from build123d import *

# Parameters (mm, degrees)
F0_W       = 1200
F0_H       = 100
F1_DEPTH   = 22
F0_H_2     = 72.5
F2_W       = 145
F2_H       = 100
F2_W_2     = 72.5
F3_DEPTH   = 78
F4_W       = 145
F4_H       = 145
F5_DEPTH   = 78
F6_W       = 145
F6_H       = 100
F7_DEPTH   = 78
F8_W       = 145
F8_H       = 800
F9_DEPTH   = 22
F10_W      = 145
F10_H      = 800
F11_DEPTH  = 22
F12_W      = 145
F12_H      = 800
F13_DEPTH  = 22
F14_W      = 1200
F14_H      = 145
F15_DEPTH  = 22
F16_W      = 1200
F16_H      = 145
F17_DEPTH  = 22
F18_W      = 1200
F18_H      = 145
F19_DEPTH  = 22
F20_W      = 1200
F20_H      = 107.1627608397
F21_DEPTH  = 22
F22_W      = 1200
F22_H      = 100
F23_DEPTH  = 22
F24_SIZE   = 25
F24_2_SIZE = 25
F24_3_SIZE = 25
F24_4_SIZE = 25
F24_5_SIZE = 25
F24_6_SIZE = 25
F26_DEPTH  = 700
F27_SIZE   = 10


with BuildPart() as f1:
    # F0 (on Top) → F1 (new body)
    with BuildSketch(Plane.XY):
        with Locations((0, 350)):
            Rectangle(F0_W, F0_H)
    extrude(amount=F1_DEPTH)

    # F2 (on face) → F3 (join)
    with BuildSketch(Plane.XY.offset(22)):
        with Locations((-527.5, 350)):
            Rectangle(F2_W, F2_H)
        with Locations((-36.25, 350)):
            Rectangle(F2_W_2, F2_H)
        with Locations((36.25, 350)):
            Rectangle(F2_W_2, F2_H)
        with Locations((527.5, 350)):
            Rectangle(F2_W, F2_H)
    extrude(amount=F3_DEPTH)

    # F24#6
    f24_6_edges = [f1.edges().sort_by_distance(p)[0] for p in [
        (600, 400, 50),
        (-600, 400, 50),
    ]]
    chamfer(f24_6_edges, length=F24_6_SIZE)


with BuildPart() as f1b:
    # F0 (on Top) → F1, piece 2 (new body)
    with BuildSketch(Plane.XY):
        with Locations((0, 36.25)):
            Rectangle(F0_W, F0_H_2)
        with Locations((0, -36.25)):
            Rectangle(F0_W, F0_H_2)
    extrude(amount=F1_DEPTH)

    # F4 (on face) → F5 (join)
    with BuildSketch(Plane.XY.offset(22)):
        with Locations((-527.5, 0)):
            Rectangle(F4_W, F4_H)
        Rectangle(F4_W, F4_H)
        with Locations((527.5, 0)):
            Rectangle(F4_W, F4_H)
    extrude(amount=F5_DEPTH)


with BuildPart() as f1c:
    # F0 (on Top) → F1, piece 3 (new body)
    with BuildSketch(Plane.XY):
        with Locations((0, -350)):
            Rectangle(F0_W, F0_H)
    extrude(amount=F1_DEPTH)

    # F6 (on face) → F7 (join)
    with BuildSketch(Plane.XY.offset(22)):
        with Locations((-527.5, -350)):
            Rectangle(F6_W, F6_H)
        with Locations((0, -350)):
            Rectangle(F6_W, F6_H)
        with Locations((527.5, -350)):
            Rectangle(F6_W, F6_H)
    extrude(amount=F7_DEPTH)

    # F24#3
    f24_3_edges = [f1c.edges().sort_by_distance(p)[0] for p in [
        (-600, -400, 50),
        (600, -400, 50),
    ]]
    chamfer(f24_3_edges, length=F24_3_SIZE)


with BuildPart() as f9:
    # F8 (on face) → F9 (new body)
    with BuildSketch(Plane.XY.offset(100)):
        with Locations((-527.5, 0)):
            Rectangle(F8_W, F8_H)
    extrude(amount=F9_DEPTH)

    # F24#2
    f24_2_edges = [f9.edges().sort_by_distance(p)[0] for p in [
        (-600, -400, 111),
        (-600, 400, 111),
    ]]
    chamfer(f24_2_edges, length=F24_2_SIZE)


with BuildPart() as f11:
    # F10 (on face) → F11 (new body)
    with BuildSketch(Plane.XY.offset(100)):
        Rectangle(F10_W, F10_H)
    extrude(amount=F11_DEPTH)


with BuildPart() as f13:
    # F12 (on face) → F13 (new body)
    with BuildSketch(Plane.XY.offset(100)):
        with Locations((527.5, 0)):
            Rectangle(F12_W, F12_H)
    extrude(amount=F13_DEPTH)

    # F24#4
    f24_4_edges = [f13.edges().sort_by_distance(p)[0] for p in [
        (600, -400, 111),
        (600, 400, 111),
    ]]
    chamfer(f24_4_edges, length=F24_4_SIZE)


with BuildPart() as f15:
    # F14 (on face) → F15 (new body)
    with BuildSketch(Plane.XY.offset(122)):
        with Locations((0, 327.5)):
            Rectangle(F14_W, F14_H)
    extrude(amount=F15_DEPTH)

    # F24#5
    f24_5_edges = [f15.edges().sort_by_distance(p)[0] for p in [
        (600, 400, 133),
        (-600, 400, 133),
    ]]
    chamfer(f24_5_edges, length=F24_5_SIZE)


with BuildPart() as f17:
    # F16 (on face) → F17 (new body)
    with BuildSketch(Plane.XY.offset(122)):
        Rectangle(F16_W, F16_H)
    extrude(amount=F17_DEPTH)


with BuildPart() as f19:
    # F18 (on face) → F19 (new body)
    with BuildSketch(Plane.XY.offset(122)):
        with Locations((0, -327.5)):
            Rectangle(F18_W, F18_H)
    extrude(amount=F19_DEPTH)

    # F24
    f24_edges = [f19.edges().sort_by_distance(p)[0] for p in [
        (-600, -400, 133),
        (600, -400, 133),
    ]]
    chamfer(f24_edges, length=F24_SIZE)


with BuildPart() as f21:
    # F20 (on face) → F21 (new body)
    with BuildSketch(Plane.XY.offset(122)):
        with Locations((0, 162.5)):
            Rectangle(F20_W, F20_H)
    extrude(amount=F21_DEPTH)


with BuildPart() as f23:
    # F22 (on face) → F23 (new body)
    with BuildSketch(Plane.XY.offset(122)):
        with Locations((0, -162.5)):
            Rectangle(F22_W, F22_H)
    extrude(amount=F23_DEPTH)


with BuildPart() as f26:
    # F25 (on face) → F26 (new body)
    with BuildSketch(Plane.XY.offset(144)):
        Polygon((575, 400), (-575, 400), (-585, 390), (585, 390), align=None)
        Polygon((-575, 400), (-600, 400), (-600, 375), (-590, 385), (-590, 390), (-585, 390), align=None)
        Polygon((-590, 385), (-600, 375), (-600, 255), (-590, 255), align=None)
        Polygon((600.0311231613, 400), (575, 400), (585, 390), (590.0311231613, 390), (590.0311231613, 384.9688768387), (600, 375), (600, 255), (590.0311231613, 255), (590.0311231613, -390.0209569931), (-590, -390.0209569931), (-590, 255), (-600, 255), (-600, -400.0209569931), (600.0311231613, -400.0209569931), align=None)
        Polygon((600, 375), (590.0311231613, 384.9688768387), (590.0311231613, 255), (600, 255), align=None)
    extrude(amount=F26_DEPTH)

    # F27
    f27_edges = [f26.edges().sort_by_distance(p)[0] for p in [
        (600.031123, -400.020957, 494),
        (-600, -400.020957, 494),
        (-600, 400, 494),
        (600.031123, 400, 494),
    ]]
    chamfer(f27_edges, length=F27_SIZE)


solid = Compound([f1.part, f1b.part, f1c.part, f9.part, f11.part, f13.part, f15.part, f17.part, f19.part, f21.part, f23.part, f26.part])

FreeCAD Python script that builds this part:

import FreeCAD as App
import Part
import Sketcher

V = App.Vector


def edges_at(feature, points):
    """Names of the edges that pass closest to the given points."""
    edges = feature.Shape.Edges
    near = lambda p: min(range(len(edges)), key=lambda i: edges[i].distToShape(Part.Vertex(*p))[0])
    return sorted({f"Edge{near(p) + 1}" for p in points})


def add_polygon(sketch, points):
    """Adds a closed chain of lines whose ends are joined by coincident constraints."""
    first, n = sketch.GeometryCount, len(points)
    for a, b in zip(points, points[1:] + points[:1]):
        sketch.addGeometry(Part.LineSegment(App.Vector(*a, 0), App.Vector(*b, 0)), False)
    for i in range(n):
        sketch.addConstraint(Sketcher.Constraint("Coincident", first + i, 2, first + (i + 1) % n, 1))

doc = App.newDocument("Part")
body = doc.addObject("PartDesign::Body", "Body")

# Sketch on XY plane
sketch1 = body.newObject("Sketcher::SketchObject", "Sketch")
sketch1.AttachmentSupport = (doc.getObject("XY_Plane"), [""])
sketch1.MapMode = "FlatFace"
add_polygon(sketch1, [(-600, 400), (-600, 300), (600, 300), (600, 400)])  # lines 0-3
sketch1.addConstraint(Sketcher.Constraint("Vertical", 0))
sketch1.addConstraint(Sketcher.Constraint("Horizontal", 1))
sketch1.addConstraint(Sketcher.Constraint("Vertical", 2))
sketch1.addConstraint(Sketcher.Constraint("Horizontal", 3))
sketch1.addConstraint(Sketcher.Constraint("DistanceX", 1, 1, 1, 2, 1200.0))
sketch1.addConstraint(Sketcher.Constraint("DistanceY", 0, 2, 0, 1, 100.0))
sketch1.addConstraint(Sketcher.Constraint("DistanceX", 0, 2, -1, 1, 600.0))
sketch1.addConstraint(Sketcher.Constraint("DistanceY", -1, 1, 0, 2, 300.0))
pad1 = body.newObject("PartDesign::Pad", "Pad")
pad1.Profile = sketch1
pad1.Length = 22

# Sketch on XY plane
sketch2 = body.newObject("Sketcher::SketchObject", "Sketch001")
sketch2.AttachmentSupport = (doc.getObject("XY_Plane"), [""])
sketch2.MapMode = "FlatFace"
sketch2.AttachmentOffset = App.Placement(V(0, 0, 22), App.Rotation())
add_polygon(sketch2, [(-600, 400), (-600, 300), (-455, 300), (-455, 400)])  # lines 0-3
add_polygon(sketch2, [(-72, 400), (-72, 300), (72, 300), (72, 400)])  # lines 4-7
add_polygon(sketch2, [(455, 400), (455, 300), (600, 300), (600, 400)])  # lines 8-11
sketch2.addConstraint(Sketcher.Constraint("Vertical", 0))
sketch2.addConstraint(Sketcher.Constraint("Horizontal", 1))
sketch2.addConstraint(Sketcher.Constraint("Vertical", 2))
sketch2.addConstraint(Sketcher.Constraint("Horizontal", 3))
sketch2.addConstraint(Sketcher.Constraint("Vertical", 4))
sketch2.addConstraint(Sketcher.Constraint("Horizontal", 5))
sketch2.addConstraint(Sketcher.Constraint("Vertical", 6))
sketch2.addConstraint(Sketcher.Constraint("Horizontal", 7))
sketch2.addConstraint(Sketcher.Constraint("Vertical", 8))
sketch2.addConstraint(Sketcher.Constraint("Horizontal", 9))
sketch2.addConstraint(Sketcher.Constraint("Vertical", 10))
sketch2.addConstraint(Sketcher.Constraint("Horizontal", 11))
sketch2.addConstraint(Sketcher.Constraint("Symmetric", 1, 2, 8, 2, -2))
sketch2.addConstraint(Sketcher.Constraint("Symmetric", 3, 2, 10, 2, -2))
sketch2.addConstraint(Sketcher.Constraint("Horizontal", 1, 2, 4, 2))
sketch2.addConstraint(Sketcher.Constraint("Horizontal", 3, 2, 6, 2))
sketch2.addConstraint(Sketcher.Constraint("Equal", 3, 5))
sketch2.addConstraint(Sketcher.Constraint("DistanceX", 1, 1, 1, 2, 145.0))
sketch2.addConstraint(Sketcher.Constraint("DistanceY", 0, 2, 0, 1, 100.0))
sketch2.addConstraint(Sketcher.Constraint("DistanceX", 0, 2, -1, 1, 600.0))
sketch2.addConstraint(Sketcher.Constraint("DistanceY", -1, 1, 0, 2, 300.0))
sketch2.addConstraint(Sketcher.Constraint("DistanceX", 4, 2, -1, 1, 72.5))
pad2 = body.newObject("PartDesign::Pad", "Pad001")
pad2.Profile = sketch2
pad2.Length = 78
doc.recompute()

chamfer = body.newObject("PartDesign::Chamfer", "Chamfer")
chamfer.Base = (pad2, edges_at(pad2, [(600, 400, 50), (-600, 400, 50)]))
chamfer.Size = 25
body2 = doc.addObject("PartDesign::Body", "Body001")

# Sketch on XY plane
sketch3 = body2.newObject("Sketcher::SketchObject", "Sketch002")
sketch3.AttachmentSupport = (doc.getObject("XY_Plane001"), [""])
sketch3.MapMode = "FlatFace"
add_polygon(sketch3, [(-600, 72), (-600, -72), (600, -72), (600, 72)])  # lines 0-3
sketch3.addConstraint(Sketcher.Constraint("Vertical", 0))
sketch3.addConstraint(Sketcher.Constraint("Horizontal", 1))
sketch3.addConstraint(Sketcher.Constraint("Vertical", 2))
sketch3.addConstraint(Sketcher.Constraint("Horizontal", 3))
sketch3.addConstraint(Sketcher.Constraint("Symmetric", 0, 2, 2, 2, -1, 1))
sketch3.addConstraint(Sketcher.Constraint("DistanceX", 1, 1, 1, 2, 1200.0))
sketch3.addConstraint(Sketcher.Constraint("DistanceY", 0, 2, 0, 1, 145.0))
pad3 = body2.newObject("PartDesign::Pad", "Pad002")
pad3.Profile = sketch3
pad3.Length = 22

# Sketch on XY plane
sketch4 = body2.newObject("Sketcher::SketchObject", "Sketch003")
sketch4.AttachmentSupport = (doc.getObject("XY_Plane001"), [""])
sketch4.MapMode = "FlatFace"
sketch4.AttachmentOffset = App.Placement(V(0, 0, 22), App.Rotation())
add_polygon(sketch4, [(-600, 72), (-600, -72), (-455, -72), (-455, 72)])  # lines 0-3
add_polygon(sketch4, [(-72, 72), (-72, -72), (72, -72), (72, 72)])  # lines 4-7
add_polygon(sketch4, [(455, 72), (455, -72), (600, -72), (600, 72)])  # lines 8-11
sketch4.addConstraint(Sketcher.Constraint("Vertical", 0))
sketch4.addConstraint(Sketcher.Constraint("Horizontal", 1))
sketch4.addConstraint(Sketcher.Constraint("Vertical", 2))
sketch4.addConstraint(Sketcher.Constraint("Horizontal", 3))
sketch4.addConstraint(Sketcher.Constraint("Vertical", 4))
sketch4.addConstraint(Sketcher.Constraint("Horizontal", 5))
sketch4.addConstraint(Sketcher.Constraint("Vertical", 6))
sketch4.addConstraint(Sketcher.Constraint("Horizontal", 7))
sketch4.addConstraint(Sketcher.Constraint("Vertical", 8))
sketch4.addConstraint(Sketcher.Constraint("Horizontal", 9))
sketch4.addConstraint(Sketcher.Constraint("Vertical", 10))
sketch4.addConstraint(Sketcher.Constraint("Horizontal", 11))
sketch4.addConstraint(Sketcher.Constraint("Symmetric", 4, 2, 6, 2, -1, 1))
sketch4.addConstraint(Sketcher.Constraint("Symmetric", 2, 2, 8, 2, -1, 1))
sketch4.addConstraint(Sketcher.Constraint("Symmetric", 0, 2, 10, 2, -1, 1))
sketch4.addConstraint(Sketcher.Constraint("Horizontal", 1, 2, 4, 2))
sketch4.addConstraint(Sketcher.Constraint("Horizontal", 3, 2, 6, 2))
sketch4.addConstraint(Sketcher.Constraint("Equal", 3, 5))
sketch4.addConstraint(Sketcher.Constraint("Equal", 11, 0))
sketch4.addConstraint(Sketcher.Constraint("DistanceX", 1, 1, 1, 2, 145.0))
sketch4.addConstraint(Sketcher.Constraint("DistanceX", 0, 2, -1, 1, 600.0))
pad4 = body2.newObject("PartDesign::Pad", "Pad003")
pad4.Profile = sketch4
pad4.Length = 78
body3 = doc.addObject("PartDesign::Body", "Body002")

# Sketch on XY plane
sketch5 = body3.newObject("Sketcher::SketchObject", "Sketch004")
sketch5.AttachmentSupport = (doc.getObject("XY_Plane002"), [""])
sketch5.MapMode = "FlatFace"
add_polygon(sketch5, [(-600, -300), (-600, -400), (600, -400), (600, -300)])  # lines 0-3
sketch5.addConstraint(Sketcher.Constraint("Vertical", 0))
sketch5.addConstraint(Sketcher.Constraint("Horizontal", 1))
sketch5.addConstraint(Sketcher.Constraint("Vertical", 2))
sketch5.addConstraint(Sketcher.Constraint("Horizontal", 3))
sketch5.addConstraint(Sketcher.Constraint("DistanceX", 1, 1, 1, 2, 1200.0))
sketch5.addConstraint(Sketcher.Constraint("DistanceY", 0, 2, 0, 1, 100.0))
sketch5.addConstraint(Sketcher.Constraint("DistanceX", 0, 2, -1, 1, 600.0))
sketch5.addConstraint(Sketcher.Constraint("DistanceY", 0, 2, -1, 1, 400.0))
pad5 = body3.newObject("PartDesign::Pad", "Pad004")
pad5.Profile = sketch5
pad5.Length = 22

# Sketch on XY plane
sketch6 = body3.newObject("Sketcher::SketchObject", "Sketch005")
sketch6.AttachmentSupport = (doc.getObject("XY_Plane002"), [""])
sketch6.MapMode = "FlatFace"
sketch6.AttachmentOffset = App.Placement(V(0, 0, 22), App.Rotation())
add_polygon(sketch6, [(-600, -300), (-600, -400), (-455, -400), (-455, -300)])  # lines 0-3
add_polygon(sketch6, [(-72, -300), (-72, -400), (72, -400), (72, -300)])  # lines 4-7
add_polygon(sketch6, [(455, -300), (455, -400), (600, -400), (600, -300)])  # lines 8-11
sketch6.addConstraint(Sketcher.Constraint("Vertical", 0))
sketch6.addConstraint(Sketcher.Constraint("Horizontal", 1))
sketch6.addConstraint(Sketcher.Constraint("Vertical", 2))
sketch6.addConstraint(Sketcher.Constraint("Horizontal", 3))
sketch6.addConstraint(Sketcher.Constraint("Vertical", 4))
sketch6.addConstraint(Sketcher.Constraint("Horizontal", 5))
sketch6.addConstraint(Sketcher.Constraint("Vertical", 6))
sketch6.addConstraint(Sketcher.Constraint("Horizontal", 7))
sketch6.addConstraint(Sketcher.Constraint("Vertical", 8))
sketch6.addConstraint(Sketcher.Constraint("Horizontal", 9))
sketch6.addConstraint(Sketcher.Constraint("Vertical", 10))
sketch6.addConstraint(Sketcher.Constraint("Horizontal", 11))
sketch6.addConstraint(Sketcher.Constraint("Symmetric", 1, 2, 8, 2, -2))
sketch6.addConstraint(Sketcher.Constraint("Symmetric", 3, 2, 10, 2, -2))
sketch6.addConstraint(Sketcher.Constraint("Horizontal", 1, 2, 4, 2))
sketch6.addConstraint(Sketcher.Constraint("Horizontal", 3, 2, 6, 2))
sketch6.addConstraint(Sketcher.Constraint("Equal", 3, 5))
sketch6.addConstraint(Sketcher.Constraint("DistanceX", 1, 1, 1, 2, 145.0))
sketch6.addConstraint(Sketcher.Constraint("DistanceY", 0, 2, 0, 1, 100.0))
sketch6.addConstraint(Sketcher.Constraint("DistanceX", 0, 2, -1, 1, 600.0))
sketch6.addConstraint(Sketcher.Constraint("DistanceY", 0, 2, -1, 1, 400.0))
sketch6.addConstraint(Sketcher.Constraint("DistanceX", 4, 2, -1, 1, 72.5))
pad6 = body3.newObject("PartDesign::Pad", "Pad005")
pad6.Profile = sketch6
pad6.Length = 78
doc.recompute()

chamfer2 = body3.newObject("PartDesign::Chamfer", "Chamfer001")
chamfer2.Base = (pad6, edges_at(pad6, [(-600, -400, 50), (600, -400, 50)]))
chamfer2.Size = 25
body4 = doc.addObject("PartDesign::Body", "Body003")

# Sketch on XY plane
sketch7 = body4.newObject("Sketcher::SketchObject", "Sketch006")
sketch7.AttachmentSupport = (doc.getObject("XY_Plane003"), [""])
sketch7.MapMode = "FlatFace"
sketch7.AttachmentOffset = App.Placement(V(0, 0, 100), App.Rotation())
add_polygon(sketch7, [(-600, 400), (-600, -400), (-455, -400), (-455, 400)])  # lines 0-3
sketch7.addConstraint(Sketcher.Constraint("Vertical", 0))
sketch7.addConstraint(Sketcher.Constraint("Horizontal", 1))
sketch7.addConstraint(Sketcher.Constraint("Vertical", 2))
sketch7.addConstraint(Sketcher.Constraint("Horizontal", 3))
sketch7.addConstraint(Sketcher.Constraint("DistanceX", 1, 1, 1, 2, 145.0))
sketch7.addConstraint(Sketcher.Constraint("DistanceY", 0, 2, 0, 1, 800.0))
sketch7.addConstraint(Sketcher.Constraint("DistanceX", 0, 2, -1, 1, 600.0))
sketch7.addConstraint(Sketcher.Constraint("DistanceY", 0, 2, -1, 1, 400.0))
pad7 = body4.newObject("PartDesign::Pad", "Pad006")
pad7.Profile = sketch7
pad7.Length = 22
doc.recompute()

chamfer3 = body4.newObject("PartDesign::Chamfer", "Chamfer002")
chamfer3.Base = (pad7, edges_at(pad7, [(-600, -400, 111), (-600, 400, 111)]))
chamfer3.Size = 25
body5 = doc.addObject("PartDesign::Body", "Body004")

# Sketch on XY plane
sketch8 = body5.newObject("Sketcher::SketchObject", "Sketch007")
sketch8.AttachmentSupport = (doc.getObject("XY_Plane004"), [""])
sketch8.MapMode = "FlatFace"
sketch8.AttachmentOffset = App.Placement(V(0, 0, 100), App.Rotation())
add_polygon(sketch8, [(-72, 400), (-72, -400), (72, -400), (72, 400)])  # lines 0-3
sketch8.addConstraint(Sketcher.Constraint("Vertical", 0))
sketch8.addConstraint(Sketcher.Constraint("Horizontal", 1))
sketch8.addConstraint(Sketcher.Constraint("Vertical", 2))
sketch8.addConstraint(Sketcher.Constraint("Horizontal", 3))
sketch8.addConstraint(Sketcher.Constraint("Symmetric", 0, 2, 2, 2, -1, 1))
sketch8.addConstraint(Sketcher.Constraint("DistanceX", 1, 1, 1, 2, 145.0))
sketch8.addConstraint(Sketcher.Constraint("DistanceY", 0, 2, 0, 1, 800.0))
pad8 = body5.newObject("PartDesign::Pad", "Pad007")
pad8.Profile = sketch8
pad8.Length = 22
body6 = doc.addObject("PartDesign::Body", "Body005")

# Sketch on XY plane
sketch9 = body6.newObject("Sketcher::SketchObject", "Sketch008")
sketch9.AttachmentSupport = (doc.getObject("XY_Plane005"), [""])
sketch9.MapMode = "FlatFace"
sketch9.AttachmentOffset = App.Placement(V(0, 0, 100), App.Rotation())
add_polygon(sketch9, [(455, 400), (455, -400), (600, -400), (600, 400)])  # lines 0-3
sketch9.addConstraint(Sketcher.Constraint("Vertical", 0))
sketch9.addConstraint(Sketcher.Constraint("Horizontal", 1))
sketch9.addConstraint(Sketcher.Constraint("Vertical", 2))
sketch9.addConstraint(Sketcher.Constraint("Horizontal", 3))
sketch9.addConstraint(Sketcher.Constraint("DistanceX", 1, 1, 1, 2, 145.0))
sketch9.addConstraint(Sketcher.Constraint("DistanceY", 0, 2, 0, 1, 800.0))
sketch9.addConstraint(Sketcher.Constraint("DistanceX", -1, 1, 0, 2, 455.0))
sketch9.addConstraint(Sketcher.Constraint("DistanceY", 0, 2, -1, 1, 400.0))
pad9 = body6.newObject("PartDesign::Pad", "Pad008")
pad9.Profile = sketch9
pad9.Length = 22
doc.recompute()

chamfer4 = body6.newObject("PartDesign::Chamfer", "Chamfer003")
chamfer4.Base = (pad9, edges_at(pad9, [(600, -400, 111), (600, 400, 111)]))
chamfer4.Size = 25
body7 = doc.addObject("PartDesign::Body", "Body006")

# Sketch on XY plane
sketch10 = body7.newObject("Sketcher::SketchObject", "Sketch009")
sketch10.AttachmentSupport = (doc.getObject("XY_Plane006"), [""])
sketch10.MapMode = "FlatFace"
sketch10.AttachmentOffset = App.Placement(V(0, 0, 122), App.Rotation())
add_polygon(sketch10, [(-600, 400), (-600, 255), (600, 255), (600, 400)])  # lines 0-3
sketch10.addConstraint(Sketcher.Constraint("Vertical", 0))
sketch10.addConstraint(Sketcher.Constraint("Horizontal", 1))
sketch10.addConstraint(Sketcher.Constraint("Vertical", 2))
sketch10.addConstraint(Sketcher.Constraint("Horizontal", 3))
sketch10.addConstraint(Sketcher.Constraint("DistanceX", 1, 1, 1, 2, 1200.0))
sketch10.addConstraint(Sketcher.Constraint("DistanceY", 0, 2, 0, 1, 145.0))
sketch10.addConstraint(Sketcher.Constraint("DistanceX", 0, 2, -1, 1, 600.0))
sketch10.addConstraint(Sketcher.Constraint("DistanceY", -1, 1, 0, 2, 255.0))
pad10 = body7.newObject("PartDesign::Pad", "Pad009")
pad10.Profile = sketch10
pad10.Length = 22
doc.recompute()

chamfer5 = body7.newObject("PartDesign::Chamfer", "Chamfer004")
chamfer5.Base = (pad10, edges_at(pad10, [(600, 400, 133), (-600, 400, 133)]))
chamfer5.Size = 25
body8 = doc.addObject("PartDesign::Body", "Body007")

# Sketch on XY plane
sketch11 = body8.newObject("Sketcher::SketchObject", "Sketch010")
sketch11.AttachmentSupport = (doc.getObject("XY_Plane007"), [""])
sketch11.MapMode = "FlatFace"
sketch11.AttachmentOffset = App.Placement(V(0, 0, 122), App.Rotation())
add_polygon(sketch11, [(-600, 72), (-600, -72), (600, -72), (600, 72)])  # lines 0-3
sketch11.addConstraint(Sketcher.Constraint("Vertical", 0))
sketch11.addConstraint(Sketcher.Constraint("Horizontal", 1))
sketch11.addConstraint(Sketcher.Constraint("Vertical", 2))
sketch11.addConstraint(Sketcher.Constraint("Horizontal", 3))
sketch11.addConstraint(Sketcher.Constraint("Symmetric", 0, 2, 2, 2, -1, 1))
sketch11.addConstraint(Sketcher.Constraint("DistanceX", 1, 1, 1, 2, 1200.0))
sketch11.addConstraint(Sketcher.Constraint("DistanceY", 0, 2, 0, 1, 145.0))
pad11 = body8.newObject("PartDesign::Pad", "Pad010")
pad11.Profile = sketch11
pad11.Length = 22
body9 = doc.addObject("PartDesign::Body", "Body008")

# Sketch on XY plane
sketch12 = body9.newObject("Sketcher::SketchObject", "Sketch011")
sketch12.AttachmentSupport = (doc.getObject("XY_Plane008"), [""])
sketch12.MapMode = "FlatFace"
sketch12.AttachmentOffset = App.Placement(V(0, 0, 122), App.Rotation())
add_polygon(sketch12, [(-600, -255), (-600, -400), (600, -400), (600, -255)])  # lines 0-3
sketch12.addConstraint(Sketcher.Constraint("Vertical", 0))
sketch12.addConstraint(Sketcher.Constraint("Horizontal", 1))
sketch12.addConstraint(Sketcher.Constraint("Vertical", 2))
sketch12.addConstraint(Sketcher.Constraint("Horizontal", 3))
sketch12.addConstraint(Sketcher.Constraint("DistanceX", 1, 1, 1, 2, 1200.0))
sketch12.addConstraint(Sketcher.Constraint("DistanceY", 0, 2, 0, 1, 145.0))
sketch12.addConstraint(Sketcher.Constraint("DistanceX", 0, 2, -1, 1, 600.0))
sketch12.addConstraint(Sketcher.Constraint("DistanceY", 0, 2, -1, 1, 400.0))
pad12 = body9.newObject("PartDesign::Pad", "Pad011")
pad12.Profile = sketch12
pad12.Length = 22
doc.recompute()

chamfer6 = body9.newObject("PartDesign::Chamfer", "Chamfer005")
chamfer6.Base = (pad12, edges_at(pad12, [(-600, -400, 133), (600, -400, 133)]))
chamfer6.Size = 25
body10 = doc.addObject("PartDesign::Body", "Body009")

# Sketch on XY plane
sketch13 = body10.newObject("Sketcher::SketchObject", "Sketch012")
sketch13.AttachmentSupport = (doc.getObject("XY_Plane009"), [""])
sketch13.MapMode = "FlatFace"
sketch13.AttachmentOffset = App.Placement(V(0, 0, 122), App.Rotation())
add_polygon(sketch13, [(-600, 216), (-600, 109), (600, 109), (600, 216)])  # lines 0-3
sketch13.addConstraint(Sketcher.Constraint("Vertical", 0))
sketch13.addConstraint(Sketcher.Constraint("Horizontal", 1))
sketch13.addConstraint(Sketcher.Constraint("Vertical", 2))
sketch13.addConstraint(Sketcher.Constraint("Horizontal", 3))
sketch13.addConstraint(Sketcher.Constraint("DistanceX", 1, 1, 1, 2, 1200.0))
sketch13.addConstraint(Sketcher.Constraint("DistanceX", 0, 2, -1, 1, 600.0))
sketch13.addConstraint(Sketcher.Constraint("DistanceY", 0, 2, 0, 1, 107.162761))
sketch13.addConstraint(Sketcher.Constraint("DistanceY", -1, 1, 0, 2, 108.91862))
pad13 = body10.newObject("PartDesign::Pad", "Pad012")
pad13.Profile = sketch13
pad13.Length = 22
body11 = doc.addObject("PartDesign::Body", "Body010")

# Sketch on XY plane
sketch14 = body11.newObject("Sketcher::SketchObject", "Sketch013")
sketch14.AttachmentSupport = (doc.getObject("XY_Plane010"), [""])
sketch14.MapMode = "FlatFace"
sketch14.AttachmentOffset = App.Placement(V(0, 0, 122), App.Rotation())
add_polygon(sketch14, [(-600, -112), (-600, -212), (600, -212), (600, -112)])  # lines 0-3
sketch14.addConstraint(Sketcher.Constraint("Vertical", 0))
sketch14.addConstraint(Sketcher.Constraint("Horizontal", 1))
sketch14.addConstraint(Sketcher.Constraint("Vertical", 2))
sketch14.addConstraint(Sketcher.Constraint("Horizontal", 3))
sketch14.addConstraint(Sketcher.Constraint("DistanceX", 1, 1, 1, 2, 1200.0))
sketch14.addConstraint(Sketcher.Constraint("DistanceY", 0, 2, 0, 1, 100.0))
sketch14.addConstraint(Sketcher.Constraint("DistanceX", 0, 2, -1, 1, 600.0))
sketch14.addConstraint(Sketcher.Constraint("DistanceY", 0, 2, -1, 1, 212.5))
pad14 = body11.newObject("PartDesign::Pad", "Pad013")
pad14.Profile = sketch14
pad14.Length = 22
body12 = doc.addObject("PartDesign::Body", "Body011")

# Sketch on XY plane
sketch15 = body12.newObject("Sketcher::SketchObject", "Sketch014")
sketch15.AttachmentSupport = (doc.getObject("XY_Plane011"), [""])
sketch15.MapMode = "FlatFace"
sketch15.AttachmentOffset = App.Placement(V(0, 0, 144), App.Rotation())
add_polygon(sketch15, [(-600, 400), (-600, -400), (600, -400), (600, 400)])  # lines 0-3
add_polygon(sketch15, [(-590, 390), (590, 390), (590, -390), (-590, -390)])  # lines 4-7
sketch15.addConstraint(Sketcher.Constraint("Vertical", 0))
sketch15.addConstraint(Sketcher.Constraint("Horizontal", 1))
sketch15.addConstraint(Sketcher.Constraint("Vertical", 2))
sketch15.addConstraint(Sketcher.Constraint("Horizontal", 3))
sketch15.addConstraint(Sketcher.Constraint("Horizontal", 4))
sketch15.addConstraint(Sketcher.Constraint("Vertical", 5))
sketch15.addConstraint(Sketcher.Constraint("Horizontal", 6))
sketch15.addConstraint(Sketcher.Constraint("Vertical", 7))
sketch15.addConstraint(Sketcher.Constraint("DistanceX", 0, 2, -1, 1, 600.0))
sketch15.addConstraint(Sketcher.Constraint("DistanceY", -1, 1, 2, 2, 400.0))
sketch15.addConstraint(Sketcher.Constraint("DistanceY", -1, 1, 4, 2, 390.0))
sketch15.addConstraint(Sketcher.Constraint("DistanceX", 6, 2, -1, 1, 590.0))
sketch15.addConstraint(Sketcher.Constraint("DistanceX", 4, 2, 2, 2, 10.0))
sketch15.addConstraint(Sketcher.Constraint("DistanceY", 1, 2, 5, 2, 10.0))
sketch15.addConstraint(Sketcher.Constraint("DistanceX", 1, 1, 1, 2, 1200.031123))
sketch15.addConstraint(Sketcher.Constraint("DistanceY", 0, 2, 0, 1, 800.020957))
pad15 = body12.newObject("PartDesign::Pad", "Pad014")
pad15.Profile = sketch15
pad15.Length = 700
doc.recompute()

chamfer7 = body12.newObject("PartDesign::Chamfer", "Chamfer006")
chamfer7.Base = (pad15, edges_at(pad15, [
    (600.031, -400.021, 494),
    (-600, -400.021, 494),
    (-600, 400, 494),
    (600.031, 400, 494),
]))
chamfer7.Size = 10

doc.recompute()
